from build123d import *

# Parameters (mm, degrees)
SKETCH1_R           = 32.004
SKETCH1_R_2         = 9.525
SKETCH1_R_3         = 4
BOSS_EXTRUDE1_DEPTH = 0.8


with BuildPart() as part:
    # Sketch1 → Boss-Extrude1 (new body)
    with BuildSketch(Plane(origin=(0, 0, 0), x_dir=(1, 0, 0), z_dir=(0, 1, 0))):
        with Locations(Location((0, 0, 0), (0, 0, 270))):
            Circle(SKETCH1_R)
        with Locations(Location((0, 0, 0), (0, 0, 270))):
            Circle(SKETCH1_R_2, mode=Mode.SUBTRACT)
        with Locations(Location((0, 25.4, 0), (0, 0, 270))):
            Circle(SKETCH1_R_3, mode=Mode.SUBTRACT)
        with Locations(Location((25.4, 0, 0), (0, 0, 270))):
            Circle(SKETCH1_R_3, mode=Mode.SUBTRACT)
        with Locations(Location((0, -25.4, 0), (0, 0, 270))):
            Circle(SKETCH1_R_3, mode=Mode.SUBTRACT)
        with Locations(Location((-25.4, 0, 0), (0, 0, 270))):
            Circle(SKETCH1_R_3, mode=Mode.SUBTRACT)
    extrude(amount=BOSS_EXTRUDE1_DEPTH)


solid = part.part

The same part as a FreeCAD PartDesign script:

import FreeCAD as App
import Part
import Sketcher

V = App.Vector
Q = App.Units.Quantity

doc = App.newDocument("Part")
body = doc.addObject("PartDesign::Body", "Body")

# Sketch on XZ plane
sketch1 = body.newObject("Sketcher::SketchObject", "Sketch")
sketch1.AttachmentSupport = (doc.getObject("XZ_Plane"), [""])
sketch1.MapMode = "FlatFace"
sketch1.addGeometry(Part.Circle(V(0, 0, 0), V(0, 0, 1), 32), False)
sketch1.addGeometry(Part.Circle(V(0, -25.4, 0), V(0, 0, 1), 4), False)
sketch1.addGeometry(Part.Circle(V(-25.4, 0, 0), V(0, 0, 1), 4), False)
sketch1.addGeometry(Part.Circle(V(25.4, 0, 0), V(0, 0, 1), 4), False)
sketch1.addGeometry(Part.Circle(V(0, 0, 0), V(0, 0, 1), 9.5), False)
sketch1.addGeometry(Part.Circle(V(0, 25.4, 0), V(0, 0, 1), 4), False)
sketch1.addConstraint(Sketcher.Constraint("Coincident", 0, 3, -1, 1))
sketch1.addConstraint(Sketcher.Constraint("Coincident", 4, 3, -1, 1))
sketch1.addConstraint(Sketcher.Constraint("Equal", 1, 2))
sketch1.addConstraint(Sketcher.Constraint("Equal", 2, 3))
sketch1.addConstraint(Sketcher.Constraint("Equal", 3, 5))
sketch1.addConstraint(Sketcher.Constraint("Symmetric", 2, 3, 3, 3, -1, 1))
sketch1.addConstraint(Sketcher.Constraint("Symmetric", 1, 3, 5, 3, -1, 1))
sketch1.addConstraint(Sketcher.Constraint("PointOnObject", 1, 3, -2))
sketch1.addConstraint(Sketcher.Constraint("PointOnObject", 2, 3, -1))
sketch1.addConstraint(Sketcher.Constraint("Diameter", 1, Q("8 mm")))
sketch1.addConstraint(Sketcher.Constraint("Diameter", 4, Q("19.05 mm")))
sketch1.addConstraint(Sketcher.Constraint("Diameter", 0, Q("64.008 mm")))
sketch1.addConstraint(Sketcher.Constraint("DistanceY", 1, 3, -1, 1, Q("25.4 mm")))
sketch1.addConstraint(Sketcher.Constraint("DistanceX", 2, 3, -1, 1, Q("25.4 mm")))
pad1 = body.newObject("PartDesign::Pad", "Pad")
pad1.Profile = sketch1
pad1.Length = 0.8
pad1.Reversed = True

doc.recompute()
